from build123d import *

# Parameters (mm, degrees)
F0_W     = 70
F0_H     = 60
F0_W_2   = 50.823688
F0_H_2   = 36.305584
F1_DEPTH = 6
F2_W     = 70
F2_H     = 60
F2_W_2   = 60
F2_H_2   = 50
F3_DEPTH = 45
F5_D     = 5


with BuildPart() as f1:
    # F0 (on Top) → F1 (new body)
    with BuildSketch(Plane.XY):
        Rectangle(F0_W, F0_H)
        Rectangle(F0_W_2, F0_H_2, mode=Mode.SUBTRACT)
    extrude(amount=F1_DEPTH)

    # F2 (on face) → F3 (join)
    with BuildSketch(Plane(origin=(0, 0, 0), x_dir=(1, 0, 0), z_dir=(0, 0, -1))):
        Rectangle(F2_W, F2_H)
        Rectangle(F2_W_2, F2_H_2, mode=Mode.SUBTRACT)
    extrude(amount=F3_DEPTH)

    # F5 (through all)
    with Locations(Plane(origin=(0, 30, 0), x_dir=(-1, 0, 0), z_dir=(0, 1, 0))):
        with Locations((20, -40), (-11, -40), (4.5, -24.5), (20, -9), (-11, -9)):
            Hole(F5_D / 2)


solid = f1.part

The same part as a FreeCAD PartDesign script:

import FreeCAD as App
import Part
import Sketcher

V = App.Vector
Q = App.Units.Quantity


def add_polygon(sketch, points):
    """Adds a closed chain of lines whose ends are joined by coincident constraints."""
    first, n = sketch.GeometryCount, len(points)
    for a, b in zip(points, points[1:] + points[:1]):
        sketch.addGeometry(Part.LineSegment(App.Vector(*a, 0), App.Vector(*b, 0)), False)
    for i in range(n):
        sketch.addConstraint(Sketcher.Constraint("Coincident", first + i, 2, first + (i + 1) % n, 1))

doc = App.newDocument("Part")
body = doc.addObject("PartDesign::Body", "Body")

sketch1 = body.newObject("Sketcher::SketchObject", "Sketch")
sketch1.AttachmentSupport = (doc.getObject("XY_Plane"), [""])
sketch1.MapMode = "FlatFace"
add_polygon(sketch1, [(-35, 30), (-35, -30), (35, -30), (35, 30)])
add_polygon(sketch1, [(25, -18), (-25, -18), (-25, 18), (25, 18)])
sketch1.addConstraint([
    Sketcher.Constraint("Vertical", 0),
    Sketcher.Constraint("Horizontal", 1),
    Sketcher.Constraint("Vertical", 2),
    Sketcher.Constraint("Horizontal", 3),
    Sketcher.Constraint("Horizontal", 4),
    Sketcher.Constraint("Vertical", 5),
    Sketcher.Constraint("Horizontal", 6),
    Sketcher.Constraint("Vertical", 7),
    Sketcher.Constraint("Symmetric", 0, 2, 2, 2, -1, 1),
    Sketcher.Constraint("Symmetric", 4, 2, 6, 2, -1, 1),
    Sketcher.Constraint("DistanceX", 1, 1, 1, 2, Q("70 mm")),
    Sketcher.Constraint("DistanceY", 0, 2, 0, 1, Q("60 mm")),
    Sketcher.Constraint("DistanceX", 4, 2, 4, 1, Q("50.823688 mm")),
    Sketcher.Constraint("DistanceY", 5, 1, 5, 2, Q("36.305584 mm")),
])
pad1 = body.newObject("PartDesign::Pad", "Pad")
pad1.Profile = sketch1
pad1.Length = 6

sketch2 = body.newObject("Sketcher::SketchObject", "Sketch001")
sketch2.AttachmentSupport = (doc.getObject("XY_Plane"), [""])
sketch2.MapMode = "FlatFace"
add_polygon(sketch2, [(-35, -30), (-35, 30), (35, 30), (35, -30)])
add_polygon(sketch2, [(30, 25), (-30, 25), (-30, -25), (30, -25)])
sketch2.addConstraint([
    Sketcher.Constraint("Vertical", 0),
    Sketcher.Constraint("Horizontal", 1),
    Sketcher.Constraint("Vertical", 2),
    Sketcher.Constraint("Horizontal", 3),
    Sketcher.Constraint("Horizontal", 4),
    Sketcher.Constraint("Vertical", 5),
    Sketcher.Constraint("Horizontal", 6),
    Sketcher.Constraint("Vertical", 7),
    Sketcher.Constraint("Symmetric", 0, 2, 2, 2, -1, 1),
    Sketcher.Constraint("Symmetric", 4, 2, 6, 2, -1, 1),
    Sketcher.Constraint("Equal", 6, 0),
    Sketcher.Constraint("DistanceX", 1, 1, 1, 2, Q("70 mm")),
    Sketcher.Constraint("DistanceX", 4, 2, 4, 1, Q("60 mm")),
    Sketcher.Constraint("DistanceY", 5, 2, 5, 1, Q("50 mm")),
])
pad2 = body.newObject("PartDesign::Pad", "Pad001")
pad2.Profile = sketch2
pad2.Length = 45
pad2.Reversed = True

sketch3 = body.newObject("Sketcher::SketchObject", "Sketch002")
sketch3.AttachmentSupport = (doc.getObject("XZ_Plane"), [""])
sketch3.MapMode = "FlatFace"
sketch3.AttachmentOffset = App.Placement(V(0, 0, -30), App.Rotation())
sketch3.addGeometry([
    Part.Circle(V(-20, -40, 0), V(0, 0, 1), 2.5),
    Part.Circle(V(11, -40, 0), V(0, 0, 1), 2.5),
    Part.Circle(V(-4.5, -24.5, 0), V(0, 0, 1), 2.5),
    Part.Circle(V(-20, -9, 0), V(0, 0, 1), 2.5),
    Part.Circle(V(11, -9, 0), V(0, 0, 1), 2.5),
], False)
sketch3.addConstraint([
    Sketcher.Constraint("Equal", 0, 1),
    Sketcher.Constraint("Equal", 1, 2),
    Sketcher.Constraint("Equal", 2, 3),
    Sketcher.Constraint("Equal", 3, 4),
    Sketcher.Constraint("Horizontal", 0, 3, 1, 3),
    Sketcher.Constraint("Horizontal", 3, 3, 4, 3),
    Sketcher.Constraint("Vertical", 0, 3, 3, 3),
    Sketcher.Constraint("Vertical", 1, 3, 4, 3),
    Sketcher.Constraint("Diameter", 0, Q("5 mm")),
    Sketcher.Constraint("DistanceX", 0, 3, -1, 1, Q("20 mm")),
    Sketcher.Constraint("DistanceY", 0, 3, -1, 1, Q("40 mm")),
    Sketcher.Constraint("DistanceX", -1, 1, 1, 3, Q("11 mm")),
    Sketcher.Constraint("DistanceY", 3, 3, -1, 1, Q("9 mm")),
    Sketcher.Constraint("DistanceX", 2, 3, -1, 1, Q("4.5 mm")),
    Sketcher.Constraint("DistanceY", 2, 3, -1, 1, Q("24.5 mm")),
])
doc.recompute()
hole = body.newObject("PartDesign::Hole", "Hole")
hole.Profile = sketch3
hole.ThreadType = "None"
hole.Diameter = 5
hole.DepthType = "ThroughAll"
hole.Reversed = True

doc.recompute()
